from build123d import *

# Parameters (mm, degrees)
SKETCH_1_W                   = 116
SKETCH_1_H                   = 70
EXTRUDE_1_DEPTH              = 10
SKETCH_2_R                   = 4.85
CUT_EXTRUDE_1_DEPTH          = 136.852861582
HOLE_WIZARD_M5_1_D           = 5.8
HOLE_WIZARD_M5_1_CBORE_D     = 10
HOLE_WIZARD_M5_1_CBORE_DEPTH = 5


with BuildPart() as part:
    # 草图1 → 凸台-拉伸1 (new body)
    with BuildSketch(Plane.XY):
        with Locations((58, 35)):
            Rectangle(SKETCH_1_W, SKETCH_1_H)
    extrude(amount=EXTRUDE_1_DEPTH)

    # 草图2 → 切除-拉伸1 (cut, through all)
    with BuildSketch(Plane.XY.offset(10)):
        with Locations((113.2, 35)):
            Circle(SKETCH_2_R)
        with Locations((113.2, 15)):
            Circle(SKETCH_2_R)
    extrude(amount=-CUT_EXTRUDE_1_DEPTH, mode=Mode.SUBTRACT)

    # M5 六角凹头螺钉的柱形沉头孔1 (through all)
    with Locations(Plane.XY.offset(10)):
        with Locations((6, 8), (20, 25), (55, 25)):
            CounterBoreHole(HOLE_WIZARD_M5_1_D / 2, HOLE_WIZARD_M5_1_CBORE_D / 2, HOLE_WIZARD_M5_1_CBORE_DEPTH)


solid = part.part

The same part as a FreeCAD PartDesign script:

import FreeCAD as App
import Part
import Sketcher
from FreeCAD import Vector

doc = App.newDocument("Part")
body = doc.addObject("PartDesign::Body", "Body")

# Sketch on XY plane
sketch1 = body.newObject("Sketcher::SketchObject", "Sketch")
sketch1.AttachmentSupport = (doc.getObject("XY_Plane"), [""])
sketch1.MapMode = "FlatFace"
sketch1.addGeometry([
    Part.LineSegment(Vector(0, 70, 0), Vector(0, 0, 0)),
    Part.LineSegment(Vector(0, 0, 0), Vector(116, 0, 0)),
    Part.LineSegment(Vector(116, 0, 0), Vector(116, 70, 0)),
    Part.LineSegment(Vector(116, 70, 0), Vector(0, 70, 0)),
], False)
sketch1.addConstraint([
    Sketcher.Constraint("Coincident", 0, 2, 1, 1),
    Sketcher.Constraint("Coincident", 1, 2, 2, 1),
    Sketcher.Constraint("Coincident", 2, 2, 3, 1),
    Sketcher.Constraint("Coincident", 3, 2, 0, 1),
    Sketcher.Constraint("Vertical", 0),
    Sketcher.Constraint("Horizontal", 1),
    Sketcher.Constraint("Vertical", 2),
    Sketcher.Constraint("Horizontal", 3),
    Sketcher.Constraint("Coincident", 0, 2, -1, 1),
    Sketcher.Constraint("DistanceX", 1, 1, 1, 2, 116.0),
    Sketcher.Constraint("DistanceY", 0, 2, 0, 1, 70.0),
])
pad1 = body.newObject("PartDesign::Pad", "Pad")
pad1.Profile = sketch1
pad1.Length = 10

# Sketch on XY plane
sketch2 = body.newObject("Sketcher::SketchObject", "Sketch001")
sketch2.AttachmentSupport = (doc.getObject("XY_Plane"), [""])
sketch2.MapMode = "FlatFace"
sketch2.AttachmentOffset = App.Placement(Vector(0, 0, 10), App.Rotation())
sketch2.addGeometry([
    Part.Circle(Vector(113.2, 35, 0), Vector(0, 0, 1), 4.8),
    Part.Circle(Vector(113.2, 15, 0), Vector(0, 0, 1), 4.8),
], False)
sketch2.addConstraint([
    Sketcher.Constraint("Equal", 0, 1),
    Sketcher.Constraint("Vertical", 0, 3, 1, 3),
    Sketcher.Constraint("Diameter", 0, 9.7),
    Sketcher.Constraint("DistanceY", -1, 1, 0, 3, 35.0),
    Sketcher.Constraint("DistanceY", -1, 1, 1, 3, 15.0),
    Sketcher.Constraint("DistanceX", -1, 1, 0, 3, 113.2),
])
pocket1 = body.newObject("PartDesign::Pocket", "Pocket")
pocket1.Profile = sketch2
pocket1.Type = "ThroughAll"

# Sketch on XY plane
sketch3 = body.newObject("Sketcher::SketchObject", "Sketch002")
sketch3.AttachmentSupport = (doc.getObject("XY_Plane"), [""])
sketch3.MapMode = "FlatFace"
sketch3.AttachmentOffset = App.Placement(Vector(0, 0, 10), App.Rotation())
sketch3.addGeometry([
    Part.Circle(Vector(6, 8, 0), Vector(0, 0, 1), 2.9),
    Part.Circle(Vector(20, 25, 0), Vector(0, 0, 1), 2.9),
    Part.Circle(Vector(55, 25, 0), Vector(0, 0, 1), 2.9),
], False)
sketch3.addConstraint([
    Sketcher.Constraint("Equal", 0, 1),
    Sketcher.Constraint("Equal", 1, 2),
    Sketcher.Constraint("Horizontal", 1, 3, 2, 3),
    Sketcher.Constraint("Diameter", 0, 5.8),
    Sketcher.Constraint("DistanceX", -1, 1, 0, 3, 6.0),
    Sketcher.Constraint("DistanceY", -1, 1, 0, 3, 8.0),
    Sketcher.Constraint("DistanceX", -1, 1, 1, 3, 20.0),
    Sketcher.Constraint("DistanceY", -1, 1, 1, 3, 25.0),
    Sketcher.Constraint("DistanceX", -1, 1, 2, 3, 55.0),
])
doc.recompute()
hole = body.newObject("PartDesign::Hole", "Hole")
hole.Profile = sketch3
hole.ThreadType = "None"
hole.Diameter = 5.8
hole.DepthType = "ThroughAll"
hole.HoleCutType = "Counterbore"
hole.HoleCutDiameter = 10
hole.HoleCutDepth = 5

doc.recompute()
